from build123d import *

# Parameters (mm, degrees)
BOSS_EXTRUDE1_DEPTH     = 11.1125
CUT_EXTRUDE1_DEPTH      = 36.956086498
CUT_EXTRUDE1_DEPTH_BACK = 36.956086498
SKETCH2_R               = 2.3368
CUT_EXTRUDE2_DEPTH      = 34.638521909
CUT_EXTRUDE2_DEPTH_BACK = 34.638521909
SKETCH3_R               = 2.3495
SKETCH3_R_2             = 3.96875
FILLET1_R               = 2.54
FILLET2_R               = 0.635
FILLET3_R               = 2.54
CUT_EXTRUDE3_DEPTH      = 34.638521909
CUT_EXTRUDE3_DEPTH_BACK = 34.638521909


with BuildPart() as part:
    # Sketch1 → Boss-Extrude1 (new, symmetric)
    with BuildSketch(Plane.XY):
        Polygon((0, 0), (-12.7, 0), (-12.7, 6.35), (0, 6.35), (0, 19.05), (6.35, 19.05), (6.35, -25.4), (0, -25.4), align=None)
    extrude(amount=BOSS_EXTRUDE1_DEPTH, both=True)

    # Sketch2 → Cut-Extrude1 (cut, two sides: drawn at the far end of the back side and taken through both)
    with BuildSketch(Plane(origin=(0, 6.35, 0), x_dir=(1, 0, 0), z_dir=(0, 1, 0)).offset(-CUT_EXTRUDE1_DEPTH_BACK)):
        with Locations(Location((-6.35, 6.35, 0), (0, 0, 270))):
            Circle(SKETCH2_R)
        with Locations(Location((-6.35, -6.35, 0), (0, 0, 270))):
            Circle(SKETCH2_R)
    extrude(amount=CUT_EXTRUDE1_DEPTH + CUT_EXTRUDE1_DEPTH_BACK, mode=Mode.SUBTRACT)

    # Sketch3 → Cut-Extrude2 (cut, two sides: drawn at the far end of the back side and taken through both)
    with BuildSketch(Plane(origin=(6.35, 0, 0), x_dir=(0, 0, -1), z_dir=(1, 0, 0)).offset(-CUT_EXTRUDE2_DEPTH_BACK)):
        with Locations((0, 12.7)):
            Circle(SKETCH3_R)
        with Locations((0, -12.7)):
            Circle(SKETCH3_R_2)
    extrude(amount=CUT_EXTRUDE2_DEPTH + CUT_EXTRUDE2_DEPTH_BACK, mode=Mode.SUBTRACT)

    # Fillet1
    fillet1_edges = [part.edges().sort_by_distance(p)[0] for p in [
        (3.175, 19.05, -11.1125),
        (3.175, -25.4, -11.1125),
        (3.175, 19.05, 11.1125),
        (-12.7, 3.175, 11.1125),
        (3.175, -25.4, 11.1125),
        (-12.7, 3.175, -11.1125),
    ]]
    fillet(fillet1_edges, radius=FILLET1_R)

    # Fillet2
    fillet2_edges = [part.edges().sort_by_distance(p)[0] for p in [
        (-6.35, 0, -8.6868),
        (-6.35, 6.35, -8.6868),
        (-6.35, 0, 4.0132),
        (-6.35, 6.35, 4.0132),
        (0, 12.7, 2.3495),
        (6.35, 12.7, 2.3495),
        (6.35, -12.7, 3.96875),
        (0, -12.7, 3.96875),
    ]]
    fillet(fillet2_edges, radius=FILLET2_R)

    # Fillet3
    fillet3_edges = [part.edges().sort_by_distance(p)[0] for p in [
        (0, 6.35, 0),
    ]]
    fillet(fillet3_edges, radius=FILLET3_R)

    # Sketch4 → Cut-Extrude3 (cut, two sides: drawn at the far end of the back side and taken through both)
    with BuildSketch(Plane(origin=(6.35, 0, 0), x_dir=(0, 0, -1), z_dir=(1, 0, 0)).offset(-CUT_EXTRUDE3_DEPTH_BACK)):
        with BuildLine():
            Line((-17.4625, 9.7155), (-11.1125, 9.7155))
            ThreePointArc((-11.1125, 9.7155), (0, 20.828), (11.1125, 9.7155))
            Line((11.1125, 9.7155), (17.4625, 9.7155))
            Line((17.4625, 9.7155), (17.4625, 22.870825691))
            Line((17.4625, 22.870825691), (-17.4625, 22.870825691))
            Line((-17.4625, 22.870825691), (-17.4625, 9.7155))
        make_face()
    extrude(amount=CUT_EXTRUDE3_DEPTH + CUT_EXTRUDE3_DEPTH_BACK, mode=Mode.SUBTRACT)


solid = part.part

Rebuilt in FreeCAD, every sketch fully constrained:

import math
import FreeCAD as App
import Part
import Sketcher
Q = App.Units.Quantity


def edges_at(feature, points):
    """Names of the edges that pass closest to the given points."""
    edges = feature.Shape.Edges
    near = lambda p: min(range(len(edges)), key=lambda i: edges[i].distToShape(Part.Vertex(*p))[0])
    return sorted({f"Edge{near(p) + 1}" for p in points})

doc = App.newDocument("Part")
body = doc.addObject("PartDesign::Body", "Body")

# Sketch on XY plane
sketch1 = body.newObject("Sketcher::SketchObject", "Sketch")
sketch1.AttachmentSupport = (doc.getObject("XY_Plane"), [""])
sketch1.MapMode = "FlatFace"
sketch1.addGeometry(Part.LineSegment(App.Vector(-13, 0, 0), App.Vector(0, 0, 0)), False)
sketch1.addGeometry(Part.LineSegment(App.Vector(0, 0, 0), App.Vector(0, -25, 0)), False)
sketch1.addGeometry(Part.LineSegment(App.Vector(0, -25, 0), App.Vector(6, -25, 0)), False)
sketch1.addGeometry(Part.LineSegment(App.Vector(6, -25, 0), App.Vector(6, 19, 0)), False)
sketch1.addGeometry(Part.LineSegment(App.Vector(6, 19, 0), App.Vector(0, 19, 0)), False)
sketch1.addGeometry(Part.LineSegment(App.Vector(0, 19, 0), App.Vector(0, 6, 0)), False)
sketch1.addGeometry(Part.LineSegment(App.Vector(0, 6, 0), App.Vector(-13, 6, 0)), False)
sketch1.addGeometry(Part.LineSegment(App.Vector(-13, 6, 0), App.Vector(-13, 0, 0)), False)
sketch1.addConstraint(Sketcher.Constraint("Coincident", 0, 2, 1, 1))
sketch1.addConstraint(Sketcher.Constraint("Coincident", 1, 2, 2, 1))
sketch1.addConstraint(Sketcher.Constraint("Coincident", 2, 2, 3, 1))
sketch1.addConstraint(Sketcher.Constraint("Coincident", 3, 2, 4, 1))
sketch1.addConstraint(Sketcher.Constraint("Coincident", 4, 2, 5, 1))
sketch1.addConstraint(Sketcher.Constraint("Coincident", 5, 2, 6, 1))
sketch1.addConstraint(Sketcher.Constraint("Coincident", 6, 2, 7, 1))
sketch1.addConstraint(Sketcher.Constraint("Coincident", 7, 2, 0, 1))
sketch1.addConstraint(Sketcher.Constraint("Horizontal", 0))
sketch1.addConstraint(Sketcher.Constraint("Vertical", 1))
sketch1.addConstraint(Sketcher.Constraint("Horizontal", 2))
sketch1.addConstraint(Sketcher.Constraint("Vertical", 3))
sketch1.addConstraint(Sketcher.Constraint("Horizontal", 4))
sketch1.addConstraint(Sketcher.Constraint("Vertical", 5))
sketch1.addConstraint(Sketcher.Constraint("Horizontal", 6))
sketch1.addConstraint(Sketcher.Constraint("Vertical", 7))
sketch1.addConstraint(Sketcher.Constraint("Coincident", 0, 2, -1, 1))
sketch1.addConstraint(Sketcher.Constraint("PointOnObject", 4, 2, -2))
sketch1.addConstraint(Sketcher.Constraint("Equal", 6, 5))
sketch1.addConstraint(Sketcher.Constraint("Equal", 4, 7))
sketch1.addConstraint(Sketcher.Constraint("DistanceY", 1, 2, 1, 1, Q("1 in")))
sketch1.addConstraint(Sketcher.Constraint("DistanceX", 0, 1, 0, 2, Q("0.5 in")))
sketch1.addConstraint(Sketcher.Constraint("DistanceX", 2, 1, 2, 2, Q("0.25 in")))
pad1 = body.newObject("PartDesign::Pad", "Pad")
pad1.Profile = sketch1
pad1.Length = Q("0.875 in")
pad1.Midplane = True

# Sketch on XZ plane
sketch2 = body.newObject("Sketcher::SketchObject", "Sketch001")
sketch2.AttachmentSupport = (doc.getObject("XZ_Plane"), [""])
sketch2.MapMode = "FlatFace"
sketch2.AttachmentOffset = App.Placement(App.Vector(0, 0, -0.25 * 25.4), App.Rotation())
sketch2.addGeometry(Part.Circle(App.Vector(-6.3, -6.3, 0), App.Vector(0, 0, 1), 2.3), False)
sketch2.addGeometry(Part.Circle(App.Vector(-6.3, 6.3, 0), App.Vector(0, 0, 1), 2.3), False)
sketch2.addConstraint(Sketcher.Constraint("Equal", 0, 1))
sketch2.addConstraint(Sketcher.Constraint("Symmetric", 0, 3, 1, 3, -1))
sketch2.addConstraint(Sketcher.Constraint("Diameter", 0, Q("0.184 in")))
sketch2.addConstraint(Sketcher.Constraint("DistanceY", 0, 3, 1, 3, Q("0.5 in")))
sketch2.addConstraint(Sketcher.Constraint("DistanceX", 0, 3, -1, 1, Q("0.25 in")))
pocket1 = body.newObject("PartDesign::Pocket", "Pocket")
pocket1.Profile = sketch2
pocket1.Type = "ThroughAll"
pocket1.Midplane = True

# Sketch on YZ plane
sketch3 = body.newObject("Sketcher::SketchObject", "Sketch002")
sketch3.AttachmentSupport = (doc.getObject("YZ_Plane"), [""])
sketch3.MapMode = "FlatFace"
sketch3.AttachmentOffset = App.Placement(App.Vector(0, 0, 0.25 * 25.4), App.Rotation())
sketch3.addGeometry(Part.Circle(App.Vector(12.7, 0, 0), App.Vector(0, 0, 1), 2.3), False)
sketch3.addGeometry(Part.Circle(App.Vector(-12.7, 0, 0), App.Vector(0, 0, 1), 4), False)
sketch3.addConstraint(Sketcher.Constraint("Symmetric", 0, 3, 1, 3, -1, 1))
sketch3.addConstraint(Sketcher.Constraint("PointOnObject", 0, 3, -1))
sketch3.addConstraint(Sketcher.Constraint("Diameter", 0, Q("0.185 in")))
sketch3.addConstraint(Sketcher.Constraint("Diameter", 1, Q("0.3125 in")))
sketch3.addConstraint(Sketcher.Constraint("DistanceX", 1, 3, 0, 3, Q("1 in")))
pocket2 = body.newObject("PartDesign::Pocket", "Pocket001")
pocket2.Profile = sketch3
pocket2.Type = "ThroughAll"
pocket2.Midplane = True
doc.recompute()

fillet = body.newObject("PartDesign::Fillet", "Fillet")
fillet.Base = (pocket2, edges_at(pocket2, [
    (3.175, 19.05, -11.113),
    (3.175, -25.4, -11.113),
    (3.175, 19.05, 11.113),
    (-12.7, 3.175, 11.113),
    (3.175, -25.4, 11.113),
    (-12.7, 3.175, -11.113),
]))
fillet.Radius = Q("0.1 in")
doc.recompute()

fillet2 = body.newObject("PartDesign::Fillet", "Fillet001")
fillet2.Base = (fillet, edges_at(fillet, [
    (-6.35, 0, -8.687),
    (-6.35, 6.35, -8.687),
    (-6.35, 0, 4.013),
    (-6.35, 6.35, 4.013),
    (0, 12.7, 2.349),
    (6.35, 12.7, 2.349),
    (6.35, -12.7, 3.969),
    (0, -12.7, 3.969),
]))
fillet2.Radius = Q("0.025 in")
doc.recompute()

fillet3 = body.newObject("PartDesign::Fillet", "Fillet002")
fillet3.Base = (fillet2, edges_at(fillet2, [(0, 6.35, 0)]))
fillet3.Radius = Q("0.1 in")

# Sketch on YZ plane
sketch4 = body.newObject("Sketcher::SketchObject", "Sketch003")
sketch4.AttachmentSupport = (doc.getObject("YZ_Plane"), [""])
sketch4.MapMode = "FlatFace"
sketch4.AttachmentOffset = App.Placement(App.Vector(0, 0, 0.25 * 25.4), App.Rotation())
sketch4.addGeometry(Part.LineSegment(App.Vector(10, 17, 0), App.Vector(10, 11, 0)), False)
sketch4.addGeometry(Part.ArcOfCircle(Part.Circle(App.Vector(10, 0, 0), App.Vector(0, 0, 1), 11), math.radians(-90), math.radians(90)), False)
sketch4.addGeometry(Part.LineSegment(App.Vector(10, -11, 0), App.Vector(10, -17, 0)), False)
sketch4.addGeometry(Part.LineSegment(App.Vector(10, -17, 0), App.Vector(23, -17, 0)), False)
sketch4.addGeometry(Part.LineSegment(App.Vector(23, -17, 0), App.Vector(23, 17, 0)), False)
sketch4.addGeometry(Part.LineSegment(App.Vector(23, 17, 0), App.Vector(10, 17, 0)), False)
sketch4.addConstraint(Sketcher.Constraint("Coincident", 0, 2, 1, 2))
sketch4.addConstraint(Sketcher.Constraint("Coincident", 1, 1, 2, 1))
sketch4.addConstraint(Sketcher.Constraint("Coincident", 2, 2, 3, 1))
sketch4.addConstraint(Sketcher.Constraint("Coincident", 3, 2, 4, 1))
sketch4.addConstraint(Sketcher.Constraint("Coincident", 4, 2, 5, 1))
sketch4.addConstraint(Sketcher.Constraint("Coincident", 5, 2, 0, 1))
sketch4.addConstraint(Sketcher.Constraint("Vertical", 0))
sketch4.addConstraint(Sketcher.Constraint("Vertical", 2))
sketch4.addConstraint(Sketcher.Constraint("Horizontal", 3))
sketch4.addConstraint(Sketcher.Constraint("Vertical", 4))
sketch4.addConstraint(Sketcher.Constraint("Horizontal", 5))
sketch4.addConstraint(Sketcher.Constraint("Symmetric", 0, 2, 1, 1, -1))
sketch4.addConstraint(Sketcher.Constraint("Vertical", 1, 3, 0, 2))
sketch4.addConstraint(Sketcher.Constraint("Equal", 0, 2))
sketch4.addConstraint(Sketcher.Constraint("Radius", 1, Q("0.4375 in")))
sketch4.addConstraint(Sketcher.Constraint("DistanceY", 0, 2, 0, 1, Q("0.25 in")))
sketch4.addConstraint(Sketcher.Constraint("DistanceX", -1, 1, 1, 3, Q("0.3825 in")))
sketch4.addConstraint(Sketcher.Constraint("DistanceX", 3, 1, 3, 2, 13.155326))
pocket3 = body.newObject("PartDesign::Pocket", "Pocket002")
pocket3.Profile = sketch4
pocket3.Type = "ThroughAll"
pocket3.Midplane = True

doc.recompute()
